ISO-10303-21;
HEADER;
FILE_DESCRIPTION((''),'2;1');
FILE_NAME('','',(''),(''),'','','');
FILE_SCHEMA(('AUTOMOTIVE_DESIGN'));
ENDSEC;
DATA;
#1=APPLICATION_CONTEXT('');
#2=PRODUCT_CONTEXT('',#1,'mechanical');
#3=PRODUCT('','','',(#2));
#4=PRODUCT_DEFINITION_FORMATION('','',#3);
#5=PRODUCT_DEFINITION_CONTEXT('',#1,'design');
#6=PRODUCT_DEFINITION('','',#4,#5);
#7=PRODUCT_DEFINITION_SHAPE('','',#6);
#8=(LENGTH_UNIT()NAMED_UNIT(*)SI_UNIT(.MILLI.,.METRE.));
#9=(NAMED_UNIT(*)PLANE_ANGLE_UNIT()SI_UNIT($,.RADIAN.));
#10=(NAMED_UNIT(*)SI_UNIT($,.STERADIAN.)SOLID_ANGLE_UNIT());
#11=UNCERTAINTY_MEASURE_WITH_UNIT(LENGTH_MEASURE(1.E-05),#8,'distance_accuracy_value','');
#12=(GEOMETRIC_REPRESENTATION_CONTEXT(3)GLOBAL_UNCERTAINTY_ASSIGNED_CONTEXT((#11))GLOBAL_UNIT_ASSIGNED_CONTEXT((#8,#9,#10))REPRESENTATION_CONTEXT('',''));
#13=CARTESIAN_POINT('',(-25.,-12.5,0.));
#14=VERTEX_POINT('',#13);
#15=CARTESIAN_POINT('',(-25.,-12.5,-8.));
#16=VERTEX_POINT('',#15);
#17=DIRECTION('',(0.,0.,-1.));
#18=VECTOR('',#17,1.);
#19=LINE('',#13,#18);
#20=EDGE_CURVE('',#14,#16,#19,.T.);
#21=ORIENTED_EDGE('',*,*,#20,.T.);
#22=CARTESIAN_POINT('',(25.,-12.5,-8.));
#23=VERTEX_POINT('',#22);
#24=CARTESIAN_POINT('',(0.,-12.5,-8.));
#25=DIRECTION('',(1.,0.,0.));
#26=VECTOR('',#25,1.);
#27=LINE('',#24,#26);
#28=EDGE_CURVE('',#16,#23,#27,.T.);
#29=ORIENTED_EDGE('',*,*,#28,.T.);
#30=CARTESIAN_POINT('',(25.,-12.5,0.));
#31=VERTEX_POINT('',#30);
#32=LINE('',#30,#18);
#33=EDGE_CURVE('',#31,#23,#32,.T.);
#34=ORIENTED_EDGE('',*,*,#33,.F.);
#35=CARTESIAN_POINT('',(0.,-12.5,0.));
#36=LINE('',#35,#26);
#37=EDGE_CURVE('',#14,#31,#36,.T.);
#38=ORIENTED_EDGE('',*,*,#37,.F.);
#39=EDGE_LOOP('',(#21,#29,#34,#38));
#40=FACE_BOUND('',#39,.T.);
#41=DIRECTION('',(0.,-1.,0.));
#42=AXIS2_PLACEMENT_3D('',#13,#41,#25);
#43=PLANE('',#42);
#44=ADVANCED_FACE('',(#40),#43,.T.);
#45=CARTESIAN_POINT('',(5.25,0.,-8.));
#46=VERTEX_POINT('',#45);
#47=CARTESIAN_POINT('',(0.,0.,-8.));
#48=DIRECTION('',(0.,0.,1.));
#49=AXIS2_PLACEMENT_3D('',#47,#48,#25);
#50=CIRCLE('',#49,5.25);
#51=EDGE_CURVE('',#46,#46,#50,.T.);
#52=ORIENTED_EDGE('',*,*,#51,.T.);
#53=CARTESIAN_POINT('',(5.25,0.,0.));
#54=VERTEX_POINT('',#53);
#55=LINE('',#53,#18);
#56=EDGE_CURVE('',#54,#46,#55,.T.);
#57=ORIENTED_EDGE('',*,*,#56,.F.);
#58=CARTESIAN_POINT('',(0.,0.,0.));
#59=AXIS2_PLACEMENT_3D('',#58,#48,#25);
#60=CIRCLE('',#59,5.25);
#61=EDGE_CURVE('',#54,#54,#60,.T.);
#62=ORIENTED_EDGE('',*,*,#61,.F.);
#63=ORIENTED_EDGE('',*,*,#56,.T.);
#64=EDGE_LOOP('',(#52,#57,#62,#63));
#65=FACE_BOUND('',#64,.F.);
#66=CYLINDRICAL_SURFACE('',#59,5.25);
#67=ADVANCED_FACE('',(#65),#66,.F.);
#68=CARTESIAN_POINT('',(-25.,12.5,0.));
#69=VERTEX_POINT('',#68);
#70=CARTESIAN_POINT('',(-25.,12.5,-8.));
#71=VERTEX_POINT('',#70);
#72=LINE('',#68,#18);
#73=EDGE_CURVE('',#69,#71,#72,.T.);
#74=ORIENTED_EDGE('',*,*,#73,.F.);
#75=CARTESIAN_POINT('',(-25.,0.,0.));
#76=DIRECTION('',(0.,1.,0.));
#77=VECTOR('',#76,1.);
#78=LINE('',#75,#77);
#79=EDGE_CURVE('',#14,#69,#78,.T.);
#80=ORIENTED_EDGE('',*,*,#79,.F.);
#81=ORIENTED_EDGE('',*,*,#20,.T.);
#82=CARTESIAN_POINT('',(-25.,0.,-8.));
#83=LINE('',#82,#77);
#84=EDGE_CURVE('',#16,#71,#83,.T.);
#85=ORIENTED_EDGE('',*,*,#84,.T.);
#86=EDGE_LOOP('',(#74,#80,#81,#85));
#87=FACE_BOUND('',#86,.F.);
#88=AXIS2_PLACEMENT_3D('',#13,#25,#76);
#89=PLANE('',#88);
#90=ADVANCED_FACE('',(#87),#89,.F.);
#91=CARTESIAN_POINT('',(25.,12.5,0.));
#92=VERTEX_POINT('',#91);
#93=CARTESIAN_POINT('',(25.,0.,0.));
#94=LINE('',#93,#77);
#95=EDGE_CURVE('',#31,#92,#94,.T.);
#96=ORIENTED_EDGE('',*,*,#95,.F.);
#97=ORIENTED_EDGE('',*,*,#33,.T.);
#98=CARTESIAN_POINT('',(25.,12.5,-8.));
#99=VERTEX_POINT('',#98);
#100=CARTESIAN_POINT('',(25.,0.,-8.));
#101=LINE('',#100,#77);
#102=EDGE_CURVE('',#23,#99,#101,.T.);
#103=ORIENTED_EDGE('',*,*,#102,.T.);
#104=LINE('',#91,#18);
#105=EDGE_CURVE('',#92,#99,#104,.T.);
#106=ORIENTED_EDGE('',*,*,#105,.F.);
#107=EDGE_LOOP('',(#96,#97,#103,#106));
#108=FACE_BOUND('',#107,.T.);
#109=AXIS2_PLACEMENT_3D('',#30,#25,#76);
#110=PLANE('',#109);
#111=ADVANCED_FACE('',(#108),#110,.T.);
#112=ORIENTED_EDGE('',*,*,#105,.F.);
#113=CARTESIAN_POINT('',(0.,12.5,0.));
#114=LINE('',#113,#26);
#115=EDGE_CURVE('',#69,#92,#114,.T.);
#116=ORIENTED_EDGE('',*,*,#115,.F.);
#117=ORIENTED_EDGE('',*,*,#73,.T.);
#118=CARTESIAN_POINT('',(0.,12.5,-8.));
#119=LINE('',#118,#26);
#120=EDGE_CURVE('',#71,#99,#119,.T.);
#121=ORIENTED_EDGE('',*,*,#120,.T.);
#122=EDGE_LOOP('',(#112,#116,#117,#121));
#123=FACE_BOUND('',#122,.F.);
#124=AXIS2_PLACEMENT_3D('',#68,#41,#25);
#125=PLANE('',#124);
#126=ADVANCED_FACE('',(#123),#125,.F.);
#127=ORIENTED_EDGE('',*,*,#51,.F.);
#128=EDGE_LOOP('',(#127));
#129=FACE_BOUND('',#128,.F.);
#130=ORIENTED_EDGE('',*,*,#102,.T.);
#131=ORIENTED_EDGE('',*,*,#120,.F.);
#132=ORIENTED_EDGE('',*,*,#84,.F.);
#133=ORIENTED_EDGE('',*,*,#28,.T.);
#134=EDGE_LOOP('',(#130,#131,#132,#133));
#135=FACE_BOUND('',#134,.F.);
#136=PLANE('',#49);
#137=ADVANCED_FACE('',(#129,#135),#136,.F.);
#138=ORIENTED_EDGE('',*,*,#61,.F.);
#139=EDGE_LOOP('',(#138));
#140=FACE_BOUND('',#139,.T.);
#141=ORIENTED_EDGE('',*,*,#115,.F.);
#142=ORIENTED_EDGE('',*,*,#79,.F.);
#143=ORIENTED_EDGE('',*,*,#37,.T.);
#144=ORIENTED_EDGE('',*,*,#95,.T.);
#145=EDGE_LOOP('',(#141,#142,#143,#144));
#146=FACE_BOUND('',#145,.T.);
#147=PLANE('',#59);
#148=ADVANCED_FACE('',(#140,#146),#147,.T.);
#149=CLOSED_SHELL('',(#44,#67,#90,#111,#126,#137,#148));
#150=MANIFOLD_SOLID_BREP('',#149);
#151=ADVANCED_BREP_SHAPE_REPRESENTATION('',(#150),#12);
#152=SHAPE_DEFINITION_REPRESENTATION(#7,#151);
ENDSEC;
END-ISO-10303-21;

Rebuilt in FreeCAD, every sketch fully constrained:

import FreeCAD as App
import Part
import Sketcher

V = App.Vector


def add_polygon(sketch, points):
    """Adds a closed chain of lines whose ends are joined by coincident constraints."""
    first, n = sketch.GeometryCount, len(points)
    for a, b in zip(points, points[1:] + points[:1]):
        sketch.addGeometry(Part.LineSegment(App.Vector(*a, 0), App.Vector(*b, 0)), False)
    for i in range(n):
        sketch.addConstraint(Sketcher.Constraint("Coincident", first + i, 2, first + (i + 1) % n, 1))

doc = App.newDocument("Part")
body = doc.addObject("PartDesign::Body", "Body")

# Sketch on XY plane
sketch1 = body.newObject("Sketcher::SketchObject", "Sketch")
sketch1.AttachmentSupport = (doc.getObject("XY_Plane"), [""])
sketch1.MapMode = "FlatFace"
add_polygon(sketch1, [(-25, 12), (-25, -12), (25, -12), (25, 12)])  # lines 0-3
sketch1.addConstraint(Sketcher.Constraint("Vertical", 0))
sketch1.addConstraint(Sketcher.Constraint("Horizontal", 1))
sketch1.addConstraint(Sketcher.Constraint("Vertical", 2))
sketch1.addConstraint(Sketcher.Constraint("Horizontal", 3))
sketch1.addConstraint(Sketcher.Constraint("Symmetric", 0, 2, 2, 2, -1, 1))
sketch1.addConstraint(Sketcher.Constraint("DistanceX", 1, 1, 1, 2, 50.0))
sketch1.addConstraint(Sketcher.Constraint("DistanceY", 0, 2, 0, 1, 25.0))
pad1 = body.newObject("PartDesign::Pad", "Pad")
pad1.Profile = sketch1
pad1.Length = 8
pad1.Reversed = True

# Sketch on XY plane
sketch2 = body.newObject("Sketcher::SketchObject", "Sketch001")
sketch2.AttachmentSupport = (doc.getObject("XY_Plane"), [""])
sketch2.MapMode = "FlatFace"
sketch2.addGeometry(Part.Circle(V(0, 0, 0), V(0, 0, 1), 5), False)
sketch2.addConstraint(Sketcher.Constraint("Coincident", 0, 3, -1, 1))
sketch2.addConstraint(Sketcher.Constraint("Diameter", 0, 10.5))
pocket1 = body.newObject("PartDesign::Pocket", "Pocket")
pocket1.Profile = sketch2
pocket1.Type = "ThroughAll"

doc.recompute()
